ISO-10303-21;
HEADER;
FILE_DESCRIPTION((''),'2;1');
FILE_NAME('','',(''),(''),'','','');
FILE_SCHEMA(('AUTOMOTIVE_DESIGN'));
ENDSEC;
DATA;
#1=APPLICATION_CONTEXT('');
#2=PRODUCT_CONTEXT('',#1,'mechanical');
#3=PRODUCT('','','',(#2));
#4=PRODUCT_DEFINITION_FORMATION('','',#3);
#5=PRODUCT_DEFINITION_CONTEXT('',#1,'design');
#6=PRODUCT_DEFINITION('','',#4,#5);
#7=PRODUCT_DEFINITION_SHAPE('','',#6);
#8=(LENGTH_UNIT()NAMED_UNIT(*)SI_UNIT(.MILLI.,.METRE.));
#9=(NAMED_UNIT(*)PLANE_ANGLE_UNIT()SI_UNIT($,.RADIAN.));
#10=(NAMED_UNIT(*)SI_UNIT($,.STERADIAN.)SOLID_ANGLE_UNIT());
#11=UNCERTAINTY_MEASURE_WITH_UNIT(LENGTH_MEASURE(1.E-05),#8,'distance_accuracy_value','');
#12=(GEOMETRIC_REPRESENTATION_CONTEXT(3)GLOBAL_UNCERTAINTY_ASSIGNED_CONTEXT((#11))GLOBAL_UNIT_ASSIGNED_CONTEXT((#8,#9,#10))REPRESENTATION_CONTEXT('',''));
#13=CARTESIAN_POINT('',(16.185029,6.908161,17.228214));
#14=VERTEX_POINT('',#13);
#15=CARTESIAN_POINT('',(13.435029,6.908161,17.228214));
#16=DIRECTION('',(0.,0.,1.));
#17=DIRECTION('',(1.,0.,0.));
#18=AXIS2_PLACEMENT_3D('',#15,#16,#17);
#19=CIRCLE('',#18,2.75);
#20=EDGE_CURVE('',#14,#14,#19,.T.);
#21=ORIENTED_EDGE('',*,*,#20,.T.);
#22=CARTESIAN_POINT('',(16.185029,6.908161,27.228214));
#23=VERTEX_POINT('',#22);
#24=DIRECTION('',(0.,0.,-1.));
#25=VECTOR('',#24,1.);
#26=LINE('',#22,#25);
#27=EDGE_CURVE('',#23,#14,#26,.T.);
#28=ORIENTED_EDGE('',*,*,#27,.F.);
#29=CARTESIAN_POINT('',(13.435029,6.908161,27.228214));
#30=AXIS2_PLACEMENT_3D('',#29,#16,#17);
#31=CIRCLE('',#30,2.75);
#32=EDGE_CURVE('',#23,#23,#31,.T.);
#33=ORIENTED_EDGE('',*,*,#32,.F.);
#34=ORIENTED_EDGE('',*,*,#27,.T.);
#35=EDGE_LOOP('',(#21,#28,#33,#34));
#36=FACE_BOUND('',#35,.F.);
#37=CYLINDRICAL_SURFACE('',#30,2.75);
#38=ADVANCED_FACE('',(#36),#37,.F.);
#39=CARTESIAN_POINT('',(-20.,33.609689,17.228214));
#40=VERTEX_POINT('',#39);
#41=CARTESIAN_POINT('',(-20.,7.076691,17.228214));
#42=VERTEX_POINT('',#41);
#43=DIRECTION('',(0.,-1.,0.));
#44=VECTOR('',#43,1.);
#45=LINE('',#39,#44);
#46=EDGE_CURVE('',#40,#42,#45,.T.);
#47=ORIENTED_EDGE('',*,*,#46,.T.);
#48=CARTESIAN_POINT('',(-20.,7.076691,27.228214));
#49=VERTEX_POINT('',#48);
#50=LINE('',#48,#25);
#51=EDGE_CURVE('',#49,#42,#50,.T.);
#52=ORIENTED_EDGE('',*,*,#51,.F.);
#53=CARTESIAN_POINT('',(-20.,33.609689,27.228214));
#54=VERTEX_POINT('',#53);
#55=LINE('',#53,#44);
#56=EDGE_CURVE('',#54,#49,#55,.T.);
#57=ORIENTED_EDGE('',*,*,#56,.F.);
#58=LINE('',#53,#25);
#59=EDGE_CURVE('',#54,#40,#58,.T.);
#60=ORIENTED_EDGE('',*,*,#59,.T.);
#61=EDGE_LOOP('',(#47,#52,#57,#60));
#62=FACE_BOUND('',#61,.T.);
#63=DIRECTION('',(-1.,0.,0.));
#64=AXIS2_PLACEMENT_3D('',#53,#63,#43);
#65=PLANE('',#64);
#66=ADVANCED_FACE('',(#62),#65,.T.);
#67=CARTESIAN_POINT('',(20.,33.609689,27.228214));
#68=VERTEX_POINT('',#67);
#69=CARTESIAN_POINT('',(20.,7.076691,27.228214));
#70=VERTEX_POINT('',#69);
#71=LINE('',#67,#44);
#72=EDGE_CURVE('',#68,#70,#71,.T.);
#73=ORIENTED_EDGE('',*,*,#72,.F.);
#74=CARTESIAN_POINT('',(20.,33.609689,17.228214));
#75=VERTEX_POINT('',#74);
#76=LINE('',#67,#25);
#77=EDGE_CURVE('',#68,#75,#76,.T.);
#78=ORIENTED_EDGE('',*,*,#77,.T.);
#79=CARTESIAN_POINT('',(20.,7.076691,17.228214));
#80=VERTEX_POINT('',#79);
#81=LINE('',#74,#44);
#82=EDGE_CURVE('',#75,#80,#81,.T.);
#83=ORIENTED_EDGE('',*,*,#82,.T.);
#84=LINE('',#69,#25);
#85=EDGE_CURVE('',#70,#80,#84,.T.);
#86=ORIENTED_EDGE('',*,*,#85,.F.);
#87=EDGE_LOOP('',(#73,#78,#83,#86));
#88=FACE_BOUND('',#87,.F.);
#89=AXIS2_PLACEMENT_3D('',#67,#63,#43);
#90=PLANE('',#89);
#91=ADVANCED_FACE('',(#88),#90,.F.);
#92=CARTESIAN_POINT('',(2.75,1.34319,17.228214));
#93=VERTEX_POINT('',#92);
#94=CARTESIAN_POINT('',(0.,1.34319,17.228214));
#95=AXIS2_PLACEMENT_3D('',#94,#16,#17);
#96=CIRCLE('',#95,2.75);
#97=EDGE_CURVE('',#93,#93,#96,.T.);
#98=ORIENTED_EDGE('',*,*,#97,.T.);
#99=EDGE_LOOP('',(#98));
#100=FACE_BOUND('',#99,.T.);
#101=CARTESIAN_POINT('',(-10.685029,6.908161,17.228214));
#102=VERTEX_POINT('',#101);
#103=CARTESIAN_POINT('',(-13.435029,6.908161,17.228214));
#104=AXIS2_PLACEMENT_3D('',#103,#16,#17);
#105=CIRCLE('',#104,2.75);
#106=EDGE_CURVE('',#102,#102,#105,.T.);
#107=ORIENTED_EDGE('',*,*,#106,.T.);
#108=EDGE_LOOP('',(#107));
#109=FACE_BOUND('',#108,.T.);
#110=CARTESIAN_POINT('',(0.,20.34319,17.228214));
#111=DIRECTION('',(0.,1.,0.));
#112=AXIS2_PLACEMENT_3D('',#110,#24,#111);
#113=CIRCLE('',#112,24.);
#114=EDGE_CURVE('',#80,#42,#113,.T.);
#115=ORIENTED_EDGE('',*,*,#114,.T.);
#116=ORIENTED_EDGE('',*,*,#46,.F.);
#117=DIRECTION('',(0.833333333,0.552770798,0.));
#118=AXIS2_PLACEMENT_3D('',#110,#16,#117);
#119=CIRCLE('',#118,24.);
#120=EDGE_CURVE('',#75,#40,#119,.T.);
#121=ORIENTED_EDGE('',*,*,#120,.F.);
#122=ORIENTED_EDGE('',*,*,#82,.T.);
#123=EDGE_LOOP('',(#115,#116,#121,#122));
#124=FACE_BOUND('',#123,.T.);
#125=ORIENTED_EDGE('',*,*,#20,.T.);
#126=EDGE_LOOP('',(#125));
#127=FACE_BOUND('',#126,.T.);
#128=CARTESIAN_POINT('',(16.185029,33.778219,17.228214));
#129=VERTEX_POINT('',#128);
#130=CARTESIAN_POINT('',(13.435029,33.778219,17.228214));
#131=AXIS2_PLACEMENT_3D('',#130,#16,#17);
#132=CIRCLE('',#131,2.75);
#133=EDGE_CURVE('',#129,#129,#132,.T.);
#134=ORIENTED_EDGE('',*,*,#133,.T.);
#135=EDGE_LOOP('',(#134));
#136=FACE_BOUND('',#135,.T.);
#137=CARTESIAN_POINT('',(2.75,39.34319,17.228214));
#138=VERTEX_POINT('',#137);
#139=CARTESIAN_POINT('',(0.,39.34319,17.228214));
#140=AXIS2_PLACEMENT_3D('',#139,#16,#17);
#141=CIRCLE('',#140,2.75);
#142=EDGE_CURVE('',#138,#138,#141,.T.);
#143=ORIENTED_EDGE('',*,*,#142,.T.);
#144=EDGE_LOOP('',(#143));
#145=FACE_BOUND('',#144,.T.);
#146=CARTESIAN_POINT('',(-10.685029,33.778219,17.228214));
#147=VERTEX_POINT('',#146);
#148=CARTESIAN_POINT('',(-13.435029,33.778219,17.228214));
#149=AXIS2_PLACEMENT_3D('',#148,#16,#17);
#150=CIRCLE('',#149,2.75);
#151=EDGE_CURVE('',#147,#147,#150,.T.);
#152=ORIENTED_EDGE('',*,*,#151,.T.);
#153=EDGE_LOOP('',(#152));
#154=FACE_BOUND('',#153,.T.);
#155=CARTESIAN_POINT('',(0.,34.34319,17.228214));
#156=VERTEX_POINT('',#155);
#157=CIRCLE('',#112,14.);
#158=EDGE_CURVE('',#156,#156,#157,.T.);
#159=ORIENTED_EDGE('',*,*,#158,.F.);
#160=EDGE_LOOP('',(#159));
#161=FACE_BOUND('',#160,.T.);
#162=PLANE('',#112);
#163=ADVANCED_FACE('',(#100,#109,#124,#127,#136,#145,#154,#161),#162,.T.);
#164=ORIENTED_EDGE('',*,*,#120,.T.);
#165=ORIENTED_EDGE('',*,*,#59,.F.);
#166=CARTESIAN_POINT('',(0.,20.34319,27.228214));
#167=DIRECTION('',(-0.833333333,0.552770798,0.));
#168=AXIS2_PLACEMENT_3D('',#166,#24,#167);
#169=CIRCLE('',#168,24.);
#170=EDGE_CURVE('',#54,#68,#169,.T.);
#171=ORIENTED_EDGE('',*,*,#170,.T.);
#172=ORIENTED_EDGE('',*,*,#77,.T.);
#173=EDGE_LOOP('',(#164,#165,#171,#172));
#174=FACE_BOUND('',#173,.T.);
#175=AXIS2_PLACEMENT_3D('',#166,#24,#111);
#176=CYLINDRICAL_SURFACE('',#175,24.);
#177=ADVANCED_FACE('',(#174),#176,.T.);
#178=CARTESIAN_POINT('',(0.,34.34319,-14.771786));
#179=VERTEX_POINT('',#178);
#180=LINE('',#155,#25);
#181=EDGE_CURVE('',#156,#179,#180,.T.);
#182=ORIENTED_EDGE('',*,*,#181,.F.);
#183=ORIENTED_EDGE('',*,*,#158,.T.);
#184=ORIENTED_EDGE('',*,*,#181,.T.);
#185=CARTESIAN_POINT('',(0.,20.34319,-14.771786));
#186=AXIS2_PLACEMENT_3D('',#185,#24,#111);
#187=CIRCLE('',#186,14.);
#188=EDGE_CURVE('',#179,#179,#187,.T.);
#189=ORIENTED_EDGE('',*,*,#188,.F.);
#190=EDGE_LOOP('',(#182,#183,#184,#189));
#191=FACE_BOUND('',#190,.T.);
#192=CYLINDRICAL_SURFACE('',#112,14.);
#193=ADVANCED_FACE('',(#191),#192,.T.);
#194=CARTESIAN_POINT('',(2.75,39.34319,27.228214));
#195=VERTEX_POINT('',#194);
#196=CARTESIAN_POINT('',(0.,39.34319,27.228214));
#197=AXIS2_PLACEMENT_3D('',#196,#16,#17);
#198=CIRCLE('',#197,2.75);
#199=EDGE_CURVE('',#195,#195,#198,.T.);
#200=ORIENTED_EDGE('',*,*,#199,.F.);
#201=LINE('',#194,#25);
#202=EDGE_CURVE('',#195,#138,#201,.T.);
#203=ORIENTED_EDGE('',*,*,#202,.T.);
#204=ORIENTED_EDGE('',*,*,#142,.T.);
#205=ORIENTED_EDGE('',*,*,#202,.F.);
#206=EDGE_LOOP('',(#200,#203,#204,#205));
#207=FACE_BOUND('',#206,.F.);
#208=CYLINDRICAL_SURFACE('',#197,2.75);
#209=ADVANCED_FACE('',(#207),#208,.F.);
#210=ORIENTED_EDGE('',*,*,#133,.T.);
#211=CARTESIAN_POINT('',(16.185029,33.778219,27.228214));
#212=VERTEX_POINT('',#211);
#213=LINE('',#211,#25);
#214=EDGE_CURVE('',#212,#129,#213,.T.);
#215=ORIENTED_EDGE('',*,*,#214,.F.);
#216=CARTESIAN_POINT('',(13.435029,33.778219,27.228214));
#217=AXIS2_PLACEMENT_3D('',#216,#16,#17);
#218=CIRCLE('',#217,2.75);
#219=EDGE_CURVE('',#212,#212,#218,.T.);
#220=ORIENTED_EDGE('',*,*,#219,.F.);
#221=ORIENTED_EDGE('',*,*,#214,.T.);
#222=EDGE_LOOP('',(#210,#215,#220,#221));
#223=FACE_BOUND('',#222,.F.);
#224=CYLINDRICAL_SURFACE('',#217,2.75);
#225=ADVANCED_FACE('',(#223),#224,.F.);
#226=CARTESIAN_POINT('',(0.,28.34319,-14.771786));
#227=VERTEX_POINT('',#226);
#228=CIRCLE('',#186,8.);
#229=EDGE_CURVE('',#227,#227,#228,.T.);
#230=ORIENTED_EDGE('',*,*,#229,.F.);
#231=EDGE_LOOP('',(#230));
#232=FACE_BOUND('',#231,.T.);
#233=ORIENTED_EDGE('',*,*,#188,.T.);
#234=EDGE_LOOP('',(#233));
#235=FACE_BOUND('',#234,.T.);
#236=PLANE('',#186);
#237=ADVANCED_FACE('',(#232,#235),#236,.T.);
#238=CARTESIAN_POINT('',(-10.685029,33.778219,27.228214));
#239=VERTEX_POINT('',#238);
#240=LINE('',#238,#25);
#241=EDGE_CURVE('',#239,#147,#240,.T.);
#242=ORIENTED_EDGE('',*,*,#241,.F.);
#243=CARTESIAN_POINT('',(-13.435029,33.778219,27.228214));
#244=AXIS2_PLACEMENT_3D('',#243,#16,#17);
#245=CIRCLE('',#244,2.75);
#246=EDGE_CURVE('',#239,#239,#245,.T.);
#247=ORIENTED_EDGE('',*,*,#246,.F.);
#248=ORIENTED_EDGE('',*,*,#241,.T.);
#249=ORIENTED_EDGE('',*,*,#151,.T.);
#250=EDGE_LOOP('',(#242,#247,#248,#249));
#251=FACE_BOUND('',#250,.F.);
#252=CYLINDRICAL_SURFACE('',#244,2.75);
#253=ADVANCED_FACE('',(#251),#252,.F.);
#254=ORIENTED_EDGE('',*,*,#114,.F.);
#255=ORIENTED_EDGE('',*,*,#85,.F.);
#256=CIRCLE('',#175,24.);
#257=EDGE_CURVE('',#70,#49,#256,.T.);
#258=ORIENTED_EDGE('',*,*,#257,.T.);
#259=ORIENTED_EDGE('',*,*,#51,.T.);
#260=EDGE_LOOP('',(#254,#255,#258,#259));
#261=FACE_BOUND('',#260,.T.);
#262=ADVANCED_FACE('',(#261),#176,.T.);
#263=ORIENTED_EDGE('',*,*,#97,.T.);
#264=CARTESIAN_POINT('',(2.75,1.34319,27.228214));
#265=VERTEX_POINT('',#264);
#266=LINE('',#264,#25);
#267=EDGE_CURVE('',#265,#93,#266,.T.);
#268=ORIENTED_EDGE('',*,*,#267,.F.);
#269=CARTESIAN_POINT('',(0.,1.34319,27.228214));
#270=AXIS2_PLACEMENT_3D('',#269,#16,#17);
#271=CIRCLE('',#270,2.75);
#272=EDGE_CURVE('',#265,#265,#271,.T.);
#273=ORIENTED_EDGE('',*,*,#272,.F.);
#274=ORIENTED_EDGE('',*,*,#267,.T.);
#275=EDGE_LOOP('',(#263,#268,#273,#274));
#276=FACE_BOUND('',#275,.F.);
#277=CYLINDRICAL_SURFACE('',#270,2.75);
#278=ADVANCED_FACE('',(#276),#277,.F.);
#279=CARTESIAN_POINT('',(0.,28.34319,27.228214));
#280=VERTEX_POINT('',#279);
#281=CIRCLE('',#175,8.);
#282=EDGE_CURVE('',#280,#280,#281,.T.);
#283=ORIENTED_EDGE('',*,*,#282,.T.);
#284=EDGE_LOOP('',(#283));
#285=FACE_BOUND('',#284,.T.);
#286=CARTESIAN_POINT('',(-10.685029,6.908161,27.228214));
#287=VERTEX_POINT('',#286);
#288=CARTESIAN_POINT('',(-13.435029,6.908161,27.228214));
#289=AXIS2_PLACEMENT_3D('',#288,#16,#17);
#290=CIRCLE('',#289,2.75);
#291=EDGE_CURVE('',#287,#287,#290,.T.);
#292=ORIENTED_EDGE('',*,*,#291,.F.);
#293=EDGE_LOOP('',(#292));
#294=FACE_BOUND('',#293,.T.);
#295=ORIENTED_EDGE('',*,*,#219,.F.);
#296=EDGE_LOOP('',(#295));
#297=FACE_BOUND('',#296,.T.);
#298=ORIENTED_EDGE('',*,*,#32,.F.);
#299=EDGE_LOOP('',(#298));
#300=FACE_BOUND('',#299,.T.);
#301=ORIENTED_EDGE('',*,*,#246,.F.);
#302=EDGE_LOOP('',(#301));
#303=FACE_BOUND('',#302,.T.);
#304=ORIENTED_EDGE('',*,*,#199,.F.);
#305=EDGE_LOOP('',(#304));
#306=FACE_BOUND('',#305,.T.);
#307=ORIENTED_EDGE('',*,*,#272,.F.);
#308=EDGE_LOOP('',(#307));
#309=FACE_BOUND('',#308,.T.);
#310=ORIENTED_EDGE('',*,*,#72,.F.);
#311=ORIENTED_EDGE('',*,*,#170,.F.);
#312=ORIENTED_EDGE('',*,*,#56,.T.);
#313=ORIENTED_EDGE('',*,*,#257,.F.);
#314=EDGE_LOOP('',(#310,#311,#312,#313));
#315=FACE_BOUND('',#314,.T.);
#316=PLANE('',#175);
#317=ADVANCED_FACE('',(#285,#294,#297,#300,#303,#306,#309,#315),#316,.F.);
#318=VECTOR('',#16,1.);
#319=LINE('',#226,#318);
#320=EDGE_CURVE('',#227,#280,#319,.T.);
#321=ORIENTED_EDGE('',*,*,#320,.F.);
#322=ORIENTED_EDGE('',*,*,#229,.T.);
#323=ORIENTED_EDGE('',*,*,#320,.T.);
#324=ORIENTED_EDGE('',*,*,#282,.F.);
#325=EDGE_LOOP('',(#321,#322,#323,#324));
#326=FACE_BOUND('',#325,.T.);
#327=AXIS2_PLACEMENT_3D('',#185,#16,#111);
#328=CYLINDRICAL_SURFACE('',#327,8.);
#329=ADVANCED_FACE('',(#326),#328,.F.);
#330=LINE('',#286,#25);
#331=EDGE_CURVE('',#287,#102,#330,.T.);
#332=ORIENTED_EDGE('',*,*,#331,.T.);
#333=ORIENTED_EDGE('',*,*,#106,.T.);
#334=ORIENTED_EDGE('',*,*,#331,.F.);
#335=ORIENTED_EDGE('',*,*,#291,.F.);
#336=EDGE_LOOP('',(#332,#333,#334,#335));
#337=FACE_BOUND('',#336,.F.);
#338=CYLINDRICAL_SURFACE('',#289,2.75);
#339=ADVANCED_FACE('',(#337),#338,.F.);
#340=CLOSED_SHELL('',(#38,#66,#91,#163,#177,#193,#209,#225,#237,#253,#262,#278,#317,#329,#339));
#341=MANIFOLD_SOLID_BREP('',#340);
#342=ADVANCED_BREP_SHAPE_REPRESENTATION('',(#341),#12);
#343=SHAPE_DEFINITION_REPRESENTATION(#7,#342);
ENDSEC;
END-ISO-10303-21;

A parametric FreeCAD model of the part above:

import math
import FreeCAD as App
import Part
import Sketcher

V = App.Vector

doc = App.newDocument("Part")
body = doc.addObject("PartDesign::Body", "Body")

# Sketch on YZ plane
sketch1 = doc.addObject("Sketcher::SketchObject", "Sketch")
body.addObject(sketch1)
sketch1.AttachmentSupport = (doc.YZ_Plane, [""])
sketch1.MapMode = "FlatFace"
sketch1.addGeometry(Part.LineSegment(V(44, 17, 0), V(44, 27, 0)), False)
sketch1.addGeometry(Part.LineSegment(V(44, 27, 0), V(28, 27, 0)), False)
sketch1.addGeometry(Part.LineSegment(V(28, 27, 0), V(28, -15, 0)), False)
sketch1.addGeometry(Part.LineSegment(V(28, -15, 0), V(34, -15, 0)), False)
sketch1.addGeometry(Part.LineSegment(V(34, -15, 0), V(34, 17, 0)), False)
sketch1.addGeometry(Part.LineSegment(V(34, 17, 0), V(44, 17, 0)), False)
sketch1.addGeometry(Part.LineSegment(V(20, 27, 0), V(20, -15, 0)), True)  # axis
sketch1.addConstraint(Sketcher.Constraint("Coincident", 0, 2, 1, 1))
sketch1.addConstraint(Sketcher.Constraint("Coincident", 1, 2, 2, 1))
sketch1.addConstraint(Sketcher.Constraint("Coincident", 2, 2, 3, 1))
sketch1.addConstraint(Sketcher.Constraint("Coincident", 3, 2, 4, 1))
sketch1.addConstraint(Sketcher.Constraint("Coincident", 4, 2, 5, 1))
sketch1.addConstraint(Sketcher.Constraint("Coincident", 5, 2, 0, 1))
sketch1.addConstraint(Sketcher.Constraint("Vertical", 0))
sketch1.addConstraint(Sketcher.Constraint("Horizontal", 1))
sketch1.addConstraint(Sketcher.Constraint("Vertical", 2))
sketch1.addConstraint(Sketcher.Constraint("Horizontal", 3))
sketch1.addConstraint(Sketcher.Constraint("Vertical", 4))
sketch1.addConstraint(Sketcher.Constraint("Horizontal", 5))
sketch1.addConstraint(Sketcher.Constraint("Vertical", 6))
sketch1.addConstraint(Sketcher.Constraint("Horizontal", 1, 2, 6, 1))
sketch1.addConstraint(Sketcher.Constraint("Horizontal", 3, 2, 6, 2))
sketch1.addConstraint(Sketcher.Constraint("Equal", 5, 0))
sketch1.addConstraint(Sketcher.Constraint("DistanceX", 1, 2, 1, 1, 16.0))
sketch1.addConstraint(Sketcher.Constraint("DistanceX", 3, 1, 3, 2, 6.0))
sketch1.addConstraint(Sketcher.Constraint("DistanceY", 2, 2, 2, 1, 42.0))
sketch1.addConstraint(Sketcher.Constraint("DistanceX", 6, 1, 1, 2, 8.0))
sketch1.addConstraint(Sketcher.Constraint("DistanceX", -1, 1, 0, 2, 44.34319))
sketch1.addConstraint(Sketcher.Constraint("DistanceY", -1, 1, 0, 2, 27.228214))
revolution = doc.addObject("PartDesign::Revolution", "Revolution")
body.addObject(revolution)
revolution.Profile = sketch1
revolution.ReferenceAxis = (sketch1, ["Axis0"])
revolution.Angle = 360

# Sketch on XY plane
sketch2 = doc.addObject("Sketcher::SketchObject", "Sketch001")
body.addObject(sketch2)
sketch2.AttachmentSupport = (doc.XY_Plane, [""])
sketch2.MapMode = "FlatFace"
sketch2.AttachmentOffset = App.Placement(V(0, 0, 27.228214), App.Rotation())
sketch2.addGeometry(Part.LineSegment(V(-20, 7, 0), V(-20, 34, 0)), False)
sketch2.addGeometry(Part.ArcOfCircle(Part.Circle(V(0, 20, 0), V(0, 0, 1), 24), math.radians(146), math.radians(214)), False)
sketch2.addGeometry(Part.LineSegment(V(20, 34, 0), V(20, 7, 0)), False)
sketch2.addGeometry(Part.ArcOfCircle(Part.Circle(V(0, 20, 0), V(0, 0, 1), 24), math.radians(-34), math.radians(34)), False)
sketch2.addConstraint(Sketcher.Constraint("Coincident", 0, 1, 1, 2))
sketch2.addConstraint(Sketcher.Constraint("Coincident", 1, 1, 0, 2))
sketch2.addConstraint(Sketcher.Constraint("Coincident", 2, 1, 3, 2))
sketch2.addConstraint(Sketcher.Constraint("Coincident", 3, 1, 2, 2))
sketch2.addConstraint(Sketcher.Constraint("Vertical", 0))
sketch2.addConstraint(Sketcher.Constraint("Vertical", 2))
sketch2.addConstraint(Sketcher.Constraint("Coincident", 3, 3, 1, 3))
sketch2.addConstraint(Sketcher.Constraint("Equal", 1, 3))
sketch2.addConstraint(Sketcher.Constraint("Symmetric", 1, 1, 2, 1, -2))
sketch2.addConstraint(Sketcher.Constraint("Radius", 1, 24.0))
sketch2.addConstraint(Sketcher.Constraint("DistanceX", 0, 1, -1, 1, 20.0))
sketch2.addConstraint(Sketcher.Constraint("DistanceY", -1, 1, 1, 3, 20.34319))
pocket1 = doc.addObject("PartDesign::Pocket", "Pocket")
body.addObject(pocket1)
pocket1.Profile = sketch2
pocket1.Length = 10

# Sketch on XY plane
sketch3 = doc.addObject("Sketcher::SketchObject", "Sketch002")
body.addObject(sketch3)
sketch3.AttachmentSupport = (doc.XY_Plane, [""])
sketch3.MapMode = "FlatFace"
sketch3.AttachmentOffset = App.Placement(V(0, 0, 27.228214), App.Rotation())
sketch3.addGeometry(Part.Circle(V(13.4, 33.8, 0), V(0, 0, 1), 2.8), False)
sketch3.addGeometry(Part.Circle(V(0, 39.3, 0), V(0, 0, 1), 2.8), False)
sketch3.addGeometry(Part.Circle(V(-13.4, 33.8, 0), V(0, 0, 1), 2.8), False)
sketch3.addGeometry(Part.Circle(V(-13.4, 6.9, 0), V(0, 0, 1), 2.8), False)
sketch3.addGeometry(Part.Circle(V(0, 1.3, 0), V(0, 0, 1), 2.8), False)
sketch3.addGeometry(Part.Circle(V(13.4, 6.9, 0), V(0, 0, 1), 2.8), False)
sketch3.addConstraint(Sketcher.Constraint("Equal", 0, 1))
sketch3.addConstraint(Sketcher.Constraint("Equal", 1, 2))
sketch3.addConstraint(Sketcher.Constraint("Equal", 2, 3))
sketch3.addConstraint(Sketcher.Constraint("Equal", 3, 4))
sketch3.addConstraint(Sketcher.Constraint("Equal", 4, 5))
sketch3.addConstraint(Sketcher.Constraint("Symmetric", 0, 3, 2, 3, -2))
sketch3.addConstraint(Sketcher.Constraint("Symmetric", 3, 3, 5, 3, -2))
sketch3.addConstraint(Sketcher.Constraint("PointOnObject", 1, 3, -2))
sketch3.addConstraint(Sketcher.Constraint("PointOnObject", 4, 3, -2))
sketch3.addConstraint(Sketcher.Constraint("Vertical", 2, 3, 3, 3))
sketch3.addConstraint(Sketcher.Constraint("Diameter", 0, 5.5))
sketch3.addConstraint(Sketcher.Constraint("DistanceY", 4, 3, 1, 3, 38.0))
sketch3.addConstraint(Sketcher.Constraint("DistanceX", -1, 1, 0, 3, 13.435029))
sketch3.addConstraint(Sketcher.Constraint("DistanceY", -1, 1, 0, 3, 33.778219))
sketch3.addConstraint(Sketcher.Constraint("DistanceY", -1, 1, 1, 3, 39.34319))
sketch3.addConstraint(Sketcher.Constraint("DistanceY", -1, 1, 3, 3, 6.908161))
pocket2 = doc.addObject("PartDesign::Pocket", "Pocket001")
body.addObject(pocket2)
pocket2.Profile = sketch3
pocket2.Length = 10

doc.recompute()
